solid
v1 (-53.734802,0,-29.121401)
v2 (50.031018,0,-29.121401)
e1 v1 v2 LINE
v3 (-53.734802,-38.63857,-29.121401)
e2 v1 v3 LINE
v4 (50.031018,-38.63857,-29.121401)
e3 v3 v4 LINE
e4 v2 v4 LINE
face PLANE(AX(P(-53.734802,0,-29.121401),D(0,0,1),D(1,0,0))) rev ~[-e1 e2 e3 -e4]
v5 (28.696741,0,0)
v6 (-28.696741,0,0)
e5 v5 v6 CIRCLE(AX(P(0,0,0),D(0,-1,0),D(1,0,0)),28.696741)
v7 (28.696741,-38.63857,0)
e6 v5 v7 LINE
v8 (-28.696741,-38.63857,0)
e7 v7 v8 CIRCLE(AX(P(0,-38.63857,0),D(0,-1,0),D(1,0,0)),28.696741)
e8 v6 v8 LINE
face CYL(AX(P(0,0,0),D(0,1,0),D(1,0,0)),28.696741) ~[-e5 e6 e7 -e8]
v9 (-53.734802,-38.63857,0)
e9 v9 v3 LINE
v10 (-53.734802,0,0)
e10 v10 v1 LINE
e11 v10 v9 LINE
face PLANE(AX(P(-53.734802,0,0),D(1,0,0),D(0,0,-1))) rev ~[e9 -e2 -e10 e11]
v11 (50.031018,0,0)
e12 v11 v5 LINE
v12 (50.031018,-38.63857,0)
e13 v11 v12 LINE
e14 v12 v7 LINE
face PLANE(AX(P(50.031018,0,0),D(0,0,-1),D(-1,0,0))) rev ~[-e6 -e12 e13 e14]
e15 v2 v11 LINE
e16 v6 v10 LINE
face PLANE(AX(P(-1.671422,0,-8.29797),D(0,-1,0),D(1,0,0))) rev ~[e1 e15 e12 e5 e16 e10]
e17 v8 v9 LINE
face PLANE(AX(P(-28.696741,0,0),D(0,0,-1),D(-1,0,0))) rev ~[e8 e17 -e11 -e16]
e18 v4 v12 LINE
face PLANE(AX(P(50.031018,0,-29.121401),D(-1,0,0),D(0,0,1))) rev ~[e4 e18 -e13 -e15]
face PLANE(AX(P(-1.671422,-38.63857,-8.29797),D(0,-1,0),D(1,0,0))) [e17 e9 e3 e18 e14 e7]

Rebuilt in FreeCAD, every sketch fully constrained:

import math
import FreeCAD as App
import Part
import Sketcher

V = App.Vector

doc = App.newDocument("Part")
params = doc.addObject("Spreadsheet::Sheet", "Params")
for row, (alias, value) in enumerate([
    ("pad1_length", "38.63857 mm"),
], start=1):
    params.set(f"A{row}", alias)
    params.set(f"B{row}", "=" + value)
    params.setAlias(f"B{row}", alias)

body = doc.addObject("PartDesign::Body", "Body")

# Sketch on XZ plane
sketch1 = body.newObject("Sketcher::SketchObject", "Sketch")
sketch1.AttachmentSupport = (doc.getObject("XZ_Plane"), [""])
sketch1.MapMode = "FlatFace"
sketch1.addGeometry(Part.LineSegment(V(50, 0, 0), V(29, 0, 0)), False)
sketch1.addGeometry(Part.ArcOfCircle(Part.Circle(V(0, 0, 0), V(0, 0, 1), 29), math.radians(0), math.radians(180)), False)
sketch1.addGeometry(Part.LineSegment(V(-29, 0, 0), V(-54, 0, 0)), False)
sketch1.addGeometry(Part.LineSegment(V(-54, 0, 0), V(-54, -29, 0)), False)
sketch1.addGeometry(Part.LineSegment(V(-54, -29, 0), V(50, -29, 0)), False)
sketch1.addGeometry(Part.LineSegment(V(50, -29, 0), V(50, 0, 0)), False)
sketch1.addConstraint(Sketcher.Constraint("Coincident", 0, 2, 1, 1))
sketch1.addConstraint(Sketcher.Constraint("Coincident", 1, 2, 2, 1))
sketch1.addConstraint(Sketcher.Constraint("Coincident", 2, 2, 3, 1))
sketch1.addConstraint(Sketcher.Constraint("Coincident", 3, 2, 4, 1))
sketch1.addConstraint(Sketcher.Constraint("Coincident", 4, 2, 5, 1))
sketch1.addConstraint(Sketcher.Constraint("Coincident", 5, 2, 0, 1))
sketch1.addConstraint(Sketcher.Constraint("Horizontal", 0))
sketch1.addConstraint(Sketcher.Constraint("Horizontal", 2))
sketch1.addConstraint(Sketcher.Constraint("Vertical", 3))
sketch1.addConstraint(Sketcher.Constraint("Horizontal", 4))
sketch1.addConstraint(Sketcher.Constraint("Vertical", 5))
sketch1.addConstraint(Sketcher.Constraint("Coincident", 1, 3, -1, 1))
sketch1.addConstraint(Sketcher.Constraint("PointOnObject", 0, 2, -1))
sketch1.addConstraint(Sketcher.Constraint("PointOnObject", 1, 2, -1))
sketch1.addConstraint(Sketcher.Constraint("Radius", 1, 28.696741))
sketch1.addConstraint(Sketcher.Constraint("DistanceY", 3, 2, 3, 1, 29.121401))
sketch1.addConstraint(Sketcher.Constraint("DistanceX", 2, 2, 2, 1, 25.038061))
sketch1.addConstraint(Sketcher.Constraint("DistanceX", 4, 1, 4, 2, 103.76582))
pad1 = body.newObject("PartDesign::Pad", "Pad")
pad1.Profile = sketch1
pad1.setExpression("Length", "Params.pad1_length")

doc.recompute()
